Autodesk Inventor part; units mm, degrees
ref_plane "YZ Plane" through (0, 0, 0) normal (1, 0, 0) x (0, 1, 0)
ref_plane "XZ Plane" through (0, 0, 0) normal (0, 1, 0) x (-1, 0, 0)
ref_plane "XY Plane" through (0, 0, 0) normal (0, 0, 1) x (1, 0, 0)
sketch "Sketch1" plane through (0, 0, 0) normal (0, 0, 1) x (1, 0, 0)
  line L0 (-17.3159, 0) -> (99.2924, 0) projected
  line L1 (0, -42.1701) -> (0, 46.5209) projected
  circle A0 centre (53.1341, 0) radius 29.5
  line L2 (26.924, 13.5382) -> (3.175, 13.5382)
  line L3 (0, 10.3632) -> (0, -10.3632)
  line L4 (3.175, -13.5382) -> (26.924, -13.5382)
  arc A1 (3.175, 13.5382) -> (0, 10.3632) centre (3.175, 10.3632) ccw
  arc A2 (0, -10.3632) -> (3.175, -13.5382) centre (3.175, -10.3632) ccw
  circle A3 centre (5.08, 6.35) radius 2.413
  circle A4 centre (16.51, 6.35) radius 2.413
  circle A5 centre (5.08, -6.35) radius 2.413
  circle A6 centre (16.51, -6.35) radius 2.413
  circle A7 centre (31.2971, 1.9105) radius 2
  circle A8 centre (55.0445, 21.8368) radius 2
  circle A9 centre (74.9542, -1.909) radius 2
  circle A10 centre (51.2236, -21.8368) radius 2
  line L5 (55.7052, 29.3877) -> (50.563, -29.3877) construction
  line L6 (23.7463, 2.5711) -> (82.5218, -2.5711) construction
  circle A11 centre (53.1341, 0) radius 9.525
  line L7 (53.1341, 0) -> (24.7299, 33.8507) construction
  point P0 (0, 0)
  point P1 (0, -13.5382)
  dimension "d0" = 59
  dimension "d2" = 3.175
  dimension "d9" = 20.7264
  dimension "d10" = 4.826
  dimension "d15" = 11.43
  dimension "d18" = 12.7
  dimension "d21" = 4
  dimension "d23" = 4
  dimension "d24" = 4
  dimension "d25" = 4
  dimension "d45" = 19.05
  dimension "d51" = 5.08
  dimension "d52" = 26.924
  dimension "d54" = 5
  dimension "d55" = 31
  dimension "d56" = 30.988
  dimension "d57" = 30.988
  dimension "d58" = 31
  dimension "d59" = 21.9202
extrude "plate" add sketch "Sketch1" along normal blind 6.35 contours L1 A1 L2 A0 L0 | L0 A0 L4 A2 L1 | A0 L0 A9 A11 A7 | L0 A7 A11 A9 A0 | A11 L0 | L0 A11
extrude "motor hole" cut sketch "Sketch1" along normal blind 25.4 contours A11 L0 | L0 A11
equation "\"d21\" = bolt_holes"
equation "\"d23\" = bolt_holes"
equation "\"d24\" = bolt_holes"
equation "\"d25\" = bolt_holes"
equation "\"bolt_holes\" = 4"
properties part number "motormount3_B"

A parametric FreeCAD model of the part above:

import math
import FreeCAD as App
import Part
import Sketcher
Q = App.Units.Quantity

doc = App.newDocument("Part")
params = doc.addObject("Spreadsheet::Sheet", "Params")
for row, (alias, value) in enumerate([
    ("sketch1_diameter", "0.19 in"),
    ("sketch1_radius", "0.125 in"),
    ("sketch1_height", "0.816 in"),
    ("pad1_length", "0.25 in"),
    ("sketch2_diameter", "0.75 in"),
    ("pocket1_length", "1 in"),
], start=1):
    params.set(f"A{row}", alias)
    params.set(f"B{row}", "=" + value)
    params.setAlias(f"B{row}", alias)

body = doc.addObject("PartDesign::Body", "Body")

# Sketch on XY plane
sketch1 = body.newObject("Sketcher::SketchObject", "Sketch")
sketch1.AttachmentSupport = (doc.getObject("XY_Plane"), [""])
sketch1.MapMode = "FlatFace"
sketch1.addGeometry(Part.LineSegment(App.Vector(0, 10.3632, 0), App.Vector(0, -10.3632, 0)), False)
sketch1.addGeometry(Part.ArcOfCircle(Part.Circle(App.Vector(3.175, -10.3632, 0), App.Vector(0, 0, 1), 3.175), math.radians(180), math.radians(270)), False)
sketch1.addGeometry(Part.LineSegment(App.Vector(3.175, -13.5382, 0), App.Vector(26.924, -13.5382, 0)), False)
sketch1.addGeometry(Part.ArcOfCircle(Part.Circle(App.Vector(53.1341, 0, 0), App.Vector(0, 0, 1), 29.5), math.radians(-152.682467), math.radians(152.682467)), False)
sketch1.addGeometry(Part.LineSegment(App.Vector(26.924, 13.5382, 0), App.Vector(3.175, 13.5382, 0)), False)
sketch1.addGeometry(Part.ArcOfCircle(Part.Circle(App.Vector(3.175, 10.3632, 0), App.Vector(0, 0, 1), 3.175), math.radians(90), math.radians(180)), False)
sketch1.addGeometry(Part.Circle(App.Vector(5.08, 6.35, 0), App.Vector(0, 0, 1), 2.413), False)
sketch1.addGeometry(Part.Circle(App.Vector(16.51, 6.35, 0), App.Vector(0, 0, 1), 2.413), False)
sketch1.addGeometry(Part.Circle(App.Vector(55.0445, 21.8368, 0), App.Vector(0, 0, 1), 2), False)
sketch1.addGeometry(Part.Circle(App.Vector(74.9542, -1.909, 0), App.Vector(0, 0, 1), 2), False)
sketch1.addGeometry(Part.Circle(App.Vector(31.2971, 1.9105, 0), App.Vector(0, 0, 1), 2), False)
sketch1.addGeometry(Part.Circle(App.Vector(16.51, -6.35, 0), App.Vector(0, 0, 1), 2.413), False)
sketch1.addGeometry(Part.Circle(App.Vector(5.08, -6.35, 0), App.Vector(0, 0, 1), 2.413), False)
sketch1.addGeometry(Part.Circle(App.Vector(51.2236, -21.8368, 0), App.Vector(0, 0, 1), 2), False)
sketch1.addConstraint(Sketcher.Constraint("Tangent", 0, 2, 1, 1))
sketch1.addConstraint(Sketcher.Constraint("Tangent", 1, 2, 2, 1))
sketch1.addConstraint(Sketcher.Constraint("Coincident", 2, 2, 3, 1))
sketch1.addConstraint(Sketcher.Constraint("Coincident", 3, 2, 4, 1))
sketch1.addConstraint(Sketcher.Constraint("Tangent", 4, 2, 5, 1))
sketch1.addConstraint(Sketcher.Constraint("Tangent", 5, 2, 0, 1))
sketch1.addConstraint(Sketcher.Constraint("Vertical", 0))
sketch1.addConstraint(Sketcher.Constraint("Horizontal", 2))
sketch1.addConstraint(Sketcher.Constraint("Horizontal", 4))
sketch1.addConstraint(Sketcher.Constraint("Equal", 1, 5))
sketch1.addConstraint(Sketcher.Constraint("Equal", 6, 7))
sketch1.addConstraint(Sketcher.Constraint("Equal", 8, 9))
sketch1.addConstraint(Sketcher.Constraint("Equal", 9, 10))
sketch1.addConstraint(Sketcher.Constraint("Equal", 7, 11))
sketch1.addConstraint(Sketcher.Constraint("Equal", 11, 12))
sketch1.addConstraint(Sketcher.Constraint("Equal", 10, 13))
sketch1.addConstraint(Sketcher.Constraint("Symmetric", 0, 2, 5, 2, -1, 1))
sketch1.addConstraint(Sketcher.Constraint("Symmetric", 7, 3, 11, 3, -1))
sketch1.addConstraint(Sketcher.Constraint("Symmetric", 6, 3, 12, 3, -1))
sketch1.addConstraint(Sketcher.Constraint("PointOnObject", 3, 3, -1))
sketch1.addConstraint(Sketcher.Constraint("Horizontal", 6, 3, 7, 3))
sketch1.addConstraint(Sketcher.Constraint("Diameter", 6, Q("0.19 in")))
sketch1.addConstraint(Sketcher.Constraint("Radius", 1, Q("0.125 in")))
sketch1.addConstraint(Sketcher.Constraint("DistanceX", -1, 1, 6, 3, Q("0.2 in")))
sketch1.addConstraint(Sketcher.Constraint("DistanceY", 11, 3, 7, 3, Q("0.5 in")))
sketch1.addConstraint(Sketcher.Constraint("Diameter", 8, 4.0))
sketch1.addConstraint(Sketcher.Constraint("DistanceY", 0, 2, 0, 1, Q("0.816 in")))
sketch1.addConstraint(Sketcher.Constraint("DistanceX", -1, 1, 2, 2, Q("1.06 in")))
sketch1.addConstraint(Sketcher.Constraint("Radius", 3, 29.5))
sketch1.addConstraint(Sketcher.Constraint("DistanceX", 6, 3, 7, 3, Q("0.45 in")))
sketch1.addConstraint(Sketcher.Constraint("DistanceX", -1, 1, 8, 3, Q("2.1671 in")))
sketch1.addConstraint(Sketcher.Constraint("DistanceX", 10, 3, 13, 3, Q("0.7845 in")))
sketch1.addConstraint(Sketcher.Constraint("DistanceY", -1, 1, 8, 3, 21.8368))
sketch1.addConstraint(Sketcher.Constraint("DistanceX", -1, 1, 9, 3, 74.9542))
sketch1.addConstraint(Sketcher.Constraint("DistanceY", 9, 3, -1, 1, 1.909))
sketch1.addConstraint(Sketcher.Constraint("DistanceX", -1, 1, 10, 3, 31.297))
sketch1.addConstraint(Sketcher.Constraint("DistanceY", -1, 1, 10, 3, 1.9105))
sketch1.addConstraint(Sketcher.Constraint("DistanceY", 13, 3, -1, 1, 21.8368))
sketch1.setExpression("Constraints[21]", "Params.sketch1_diameter")
sketch1.setExpression("Constraints[22]", "Params.sketch1_radius")
sketch1.setExpression("Constraints[26]", "Params.sketch1_height")
pad1 = body.newObject("PartDesign::Pad", "Pad")
pad1.Profile = sketch1
pad1.setExpression("Length", "Params.pad1_length")

# Sketch on XY plane
sketch2 = body.newObject("Sketcher::SketchObject", "Sketch001")
sketch2.AttachmentSupport = (doc.getObject("XY_Plane"), [""])
sketch2.MapMode = "FlatFace"
sketch2.addGeometry(Part.Circle(App.Vector(53.1341, 0, 0), App.Vector(0, 0, 1), 9.525), False)
sketch2.addConstraint(Sketcher.Constraint("PointOnObject", 0, 3, -1))
sketch2.addConstraint(Sketcher.Constraint("Diameter", 0, Q("0.75 in")))
sketch2.addConstraint(Sketcher.Constraint("DistanceX", -1, 1, 0, 3, Q("2.0919 in")))
sketch2.setExpression("Constraints[1]", "Params.sketch2_diameter")
pocket1 = body.newObject("PartDesign::Pocket", "Pocket")
pocket1.Profile = sketch2
pocket1.setExpression("Length", "Params.pocket1_length")
pocket1.Reversed = True

doc.recompute()
